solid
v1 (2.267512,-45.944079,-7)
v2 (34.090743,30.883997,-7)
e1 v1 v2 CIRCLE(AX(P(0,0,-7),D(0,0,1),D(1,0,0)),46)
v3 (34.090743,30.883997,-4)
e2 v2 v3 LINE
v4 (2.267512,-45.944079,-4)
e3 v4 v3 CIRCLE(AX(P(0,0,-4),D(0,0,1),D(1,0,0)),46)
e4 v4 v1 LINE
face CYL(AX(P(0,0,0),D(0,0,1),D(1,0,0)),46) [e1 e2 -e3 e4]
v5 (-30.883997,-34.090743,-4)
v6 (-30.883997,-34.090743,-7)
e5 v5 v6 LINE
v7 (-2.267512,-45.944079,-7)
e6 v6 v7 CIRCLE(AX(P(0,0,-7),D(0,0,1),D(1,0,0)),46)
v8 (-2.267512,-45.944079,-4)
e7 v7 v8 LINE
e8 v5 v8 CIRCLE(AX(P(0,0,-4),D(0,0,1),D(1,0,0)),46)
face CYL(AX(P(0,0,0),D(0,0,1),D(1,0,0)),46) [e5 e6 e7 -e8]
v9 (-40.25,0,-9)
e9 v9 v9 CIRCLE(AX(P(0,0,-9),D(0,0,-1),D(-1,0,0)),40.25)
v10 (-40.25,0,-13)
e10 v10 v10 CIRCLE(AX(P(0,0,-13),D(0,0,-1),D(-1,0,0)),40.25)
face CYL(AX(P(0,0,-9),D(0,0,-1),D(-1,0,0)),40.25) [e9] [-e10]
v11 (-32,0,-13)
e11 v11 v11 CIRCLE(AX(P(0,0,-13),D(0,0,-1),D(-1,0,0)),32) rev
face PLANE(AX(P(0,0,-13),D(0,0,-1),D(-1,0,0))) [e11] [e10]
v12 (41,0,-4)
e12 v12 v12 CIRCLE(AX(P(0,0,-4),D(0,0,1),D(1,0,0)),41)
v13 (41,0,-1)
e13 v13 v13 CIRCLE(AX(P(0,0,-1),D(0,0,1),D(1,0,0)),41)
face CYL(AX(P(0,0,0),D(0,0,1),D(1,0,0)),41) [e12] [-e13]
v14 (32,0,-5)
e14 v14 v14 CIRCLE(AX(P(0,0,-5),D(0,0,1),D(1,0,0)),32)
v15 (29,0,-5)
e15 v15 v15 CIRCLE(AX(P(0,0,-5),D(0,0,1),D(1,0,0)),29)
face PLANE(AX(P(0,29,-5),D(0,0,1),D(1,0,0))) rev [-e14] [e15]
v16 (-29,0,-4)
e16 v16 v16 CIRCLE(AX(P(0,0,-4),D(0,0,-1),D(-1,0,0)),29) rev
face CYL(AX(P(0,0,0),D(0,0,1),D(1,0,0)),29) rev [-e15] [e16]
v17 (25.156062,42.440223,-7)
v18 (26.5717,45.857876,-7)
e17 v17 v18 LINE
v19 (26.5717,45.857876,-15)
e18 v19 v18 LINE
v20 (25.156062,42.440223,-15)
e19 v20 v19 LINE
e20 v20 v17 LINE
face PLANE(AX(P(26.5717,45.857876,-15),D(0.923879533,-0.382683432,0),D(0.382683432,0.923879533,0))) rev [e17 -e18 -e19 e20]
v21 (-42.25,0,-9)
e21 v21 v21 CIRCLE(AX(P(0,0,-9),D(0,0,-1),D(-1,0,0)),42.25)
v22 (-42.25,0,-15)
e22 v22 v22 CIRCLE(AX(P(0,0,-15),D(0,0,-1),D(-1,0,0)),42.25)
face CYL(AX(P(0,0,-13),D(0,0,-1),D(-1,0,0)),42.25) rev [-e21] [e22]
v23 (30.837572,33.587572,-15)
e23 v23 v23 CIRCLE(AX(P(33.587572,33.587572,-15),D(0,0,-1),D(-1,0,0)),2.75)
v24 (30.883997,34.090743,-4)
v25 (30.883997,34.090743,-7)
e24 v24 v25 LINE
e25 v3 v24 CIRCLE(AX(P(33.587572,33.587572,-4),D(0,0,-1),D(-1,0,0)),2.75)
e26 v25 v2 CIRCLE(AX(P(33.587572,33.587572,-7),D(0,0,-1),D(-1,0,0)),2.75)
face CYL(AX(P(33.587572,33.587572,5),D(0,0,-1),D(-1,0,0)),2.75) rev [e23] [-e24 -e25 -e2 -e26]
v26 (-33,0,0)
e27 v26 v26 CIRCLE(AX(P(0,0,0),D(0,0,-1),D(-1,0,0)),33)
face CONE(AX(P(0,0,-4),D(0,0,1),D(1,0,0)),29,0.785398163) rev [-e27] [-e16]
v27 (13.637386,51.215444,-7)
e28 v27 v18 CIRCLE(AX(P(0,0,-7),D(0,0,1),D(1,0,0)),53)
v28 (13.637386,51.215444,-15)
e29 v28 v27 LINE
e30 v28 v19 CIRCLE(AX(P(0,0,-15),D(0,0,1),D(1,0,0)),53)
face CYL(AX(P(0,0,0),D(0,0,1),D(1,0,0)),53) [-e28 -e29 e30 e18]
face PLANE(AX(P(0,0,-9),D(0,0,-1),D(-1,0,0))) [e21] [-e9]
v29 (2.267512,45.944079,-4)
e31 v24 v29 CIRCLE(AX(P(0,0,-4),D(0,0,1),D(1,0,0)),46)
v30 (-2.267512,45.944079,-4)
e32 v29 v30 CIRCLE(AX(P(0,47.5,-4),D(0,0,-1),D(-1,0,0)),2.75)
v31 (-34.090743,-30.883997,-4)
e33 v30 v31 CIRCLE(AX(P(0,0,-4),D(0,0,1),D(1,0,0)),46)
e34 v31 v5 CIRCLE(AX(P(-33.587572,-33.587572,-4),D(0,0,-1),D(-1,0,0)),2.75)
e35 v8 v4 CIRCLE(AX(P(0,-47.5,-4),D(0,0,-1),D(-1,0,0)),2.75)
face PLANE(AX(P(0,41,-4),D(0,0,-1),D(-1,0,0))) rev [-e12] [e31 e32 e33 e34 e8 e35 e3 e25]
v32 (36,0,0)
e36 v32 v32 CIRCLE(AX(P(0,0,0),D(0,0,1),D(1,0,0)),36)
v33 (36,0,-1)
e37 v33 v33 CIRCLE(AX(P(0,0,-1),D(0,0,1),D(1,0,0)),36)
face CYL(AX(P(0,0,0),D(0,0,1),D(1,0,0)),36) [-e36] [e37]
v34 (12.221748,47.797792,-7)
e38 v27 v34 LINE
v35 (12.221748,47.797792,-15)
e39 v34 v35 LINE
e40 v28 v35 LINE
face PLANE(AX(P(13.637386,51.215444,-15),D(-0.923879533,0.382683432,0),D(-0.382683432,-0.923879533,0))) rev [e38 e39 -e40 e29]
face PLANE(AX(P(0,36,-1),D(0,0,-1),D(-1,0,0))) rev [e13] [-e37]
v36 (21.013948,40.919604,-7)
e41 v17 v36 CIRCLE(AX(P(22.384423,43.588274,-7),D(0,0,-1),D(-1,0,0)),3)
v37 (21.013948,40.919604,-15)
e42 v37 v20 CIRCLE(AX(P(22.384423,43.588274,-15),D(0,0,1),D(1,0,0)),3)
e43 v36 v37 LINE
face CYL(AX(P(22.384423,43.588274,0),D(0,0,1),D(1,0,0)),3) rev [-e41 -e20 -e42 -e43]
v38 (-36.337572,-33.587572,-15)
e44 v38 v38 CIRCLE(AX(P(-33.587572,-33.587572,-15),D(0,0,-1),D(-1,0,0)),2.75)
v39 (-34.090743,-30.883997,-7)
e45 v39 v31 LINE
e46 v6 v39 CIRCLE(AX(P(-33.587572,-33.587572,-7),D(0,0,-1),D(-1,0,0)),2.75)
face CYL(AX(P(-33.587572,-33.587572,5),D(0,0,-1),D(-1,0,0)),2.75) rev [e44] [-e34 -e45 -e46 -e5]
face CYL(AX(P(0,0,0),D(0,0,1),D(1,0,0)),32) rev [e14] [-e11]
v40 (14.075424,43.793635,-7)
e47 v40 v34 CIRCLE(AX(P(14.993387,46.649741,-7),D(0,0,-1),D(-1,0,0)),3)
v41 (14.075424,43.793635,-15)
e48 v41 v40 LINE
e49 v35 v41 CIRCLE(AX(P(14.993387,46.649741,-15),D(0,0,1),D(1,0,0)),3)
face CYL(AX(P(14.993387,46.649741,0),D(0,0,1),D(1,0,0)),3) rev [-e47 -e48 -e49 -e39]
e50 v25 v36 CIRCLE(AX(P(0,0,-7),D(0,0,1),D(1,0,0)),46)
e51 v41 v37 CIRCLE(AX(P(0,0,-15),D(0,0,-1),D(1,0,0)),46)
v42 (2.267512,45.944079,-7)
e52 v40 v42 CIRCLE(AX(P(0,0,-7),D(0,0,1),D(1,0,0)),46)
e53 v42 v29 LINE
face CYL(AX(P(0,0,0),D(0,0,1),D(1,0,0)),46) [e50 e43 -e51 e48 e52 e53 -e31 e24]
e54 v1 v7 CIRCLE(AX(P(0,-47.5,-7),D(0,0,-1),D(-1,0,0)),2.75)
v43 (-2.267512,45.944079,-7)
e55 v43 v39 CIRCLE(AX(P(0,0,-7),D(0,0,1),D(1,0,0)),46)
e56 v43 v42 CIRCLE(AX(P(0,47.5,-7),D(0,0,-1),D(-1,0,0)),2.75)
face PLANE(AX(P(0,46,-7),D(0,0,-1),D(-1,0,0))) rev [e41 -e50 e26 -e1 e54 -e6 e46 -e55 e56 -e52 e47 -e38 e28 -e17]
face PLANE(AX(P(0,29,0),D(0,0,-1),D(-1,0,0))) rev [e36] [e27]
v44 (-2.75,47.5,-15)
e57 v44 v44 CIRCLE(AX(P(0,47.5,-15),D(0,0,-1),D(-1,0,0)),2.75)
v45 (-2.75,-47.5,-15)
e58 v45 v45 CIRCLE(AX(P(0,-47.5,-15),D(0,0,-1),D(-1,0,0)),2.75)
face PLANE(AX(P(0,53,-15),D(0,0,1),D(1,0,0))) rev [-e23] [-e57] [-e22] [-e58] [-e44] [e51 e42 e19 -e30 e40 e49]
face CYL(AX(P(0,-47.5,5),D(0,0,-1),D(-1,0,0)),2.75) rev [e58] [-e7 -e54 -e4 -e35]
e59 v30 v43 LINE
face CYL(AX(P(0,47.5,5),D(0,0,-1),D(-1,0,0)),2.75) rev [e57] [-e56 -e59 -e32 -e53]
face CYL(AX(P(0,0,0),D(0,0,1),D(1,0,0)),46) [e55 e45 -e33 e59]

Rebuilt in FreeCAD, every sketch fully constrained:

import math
import FreeCAD as App
import Part
import Sketcher
from FreeCAD import Vector
Q = App.Units.Quantity


def edges_at(feature, points):
    """Names of the edges that pass closest to the given points."""
    edges = feature.Shape.Edges
    near = lambda p: min(range(len(edges)), key=lambda i: edges[i].distToShape(Part.Vertex(*p))[0])
    return sorted({f"Edge{near(p) + 1}" for p in points})


def add_polygon(sketch, points):
    """Adds a closed chain of lines whose ends are joined by coincident constraints."""
    first, n = sketch.GeometryCount, len(points)
    for a, b in zip(points, points[1:] + points[:1]):
        sketch.addGeometry(Part.LineSegment(App.Vector(*a, 0), App.Vector(*b, 0)), False)
    for i in range(n):
        sketch.addConstraint(Sketcher.Constraint("Coincident", first + i, 2, first + (i + 1) % n, 1))

doc = App.newDocument("Part")
body = doc.addObject("PartDesign::Body", "Body")

# Sketch on YZ plane
sketch1 = body.newObject("Sketcher::SketchObject", "Sketch")
sketch1.AttachmentSupport = (doc.getObject("YZ_Plane"), [""])
sketch1.MapMode = "FlatFace"
add_polygon(sketch1, [(29, -5), (32, -5), (32, -15), (53, -15), (53, -7), (46, -7), (46, -4), (41, -4), (41, -1), (36, -1), (36, 0), (29, 0)])  # lines 0-11
sketch1.addConstraint([
    Sketcher.Constraint("Horizontal", 0),
    Sketcher.Constraint("Vertical", 1),
    Sketcher.Constraint("Horizontal", 2),
    Sketcher.Constraint("Vertical", 3),
    Sketcher.Constraint("Horizontal", 4),
    Sketcher.Constraint("Vertical", 5),
    Sketcher.Constraint("Horizontal", 6),
    Sketcher.Constraint("Vertical", 7),
    Sketcher.Constraint("Horizontal", 8),
    Sketcher.Constraint("Vertical", 9),
    Sketcher.Constraint("Horizontal", 10),
    Sketcher.Constraint("Vertical", 11),
    Sketcher.Constraint("PointOnObject", 9, 2, -1),
    Sketcher.Constraint("Equal", 6, 8),
    Sketcher.Constraint("Equal", 4, 10),
    Sketcher.Constraint("Equal", 0, 5),
    Sketcher.Constraint("Equal", 5, 7),
    Sketcher.Constraint("Equal", 8, 11),
    Sketcher.Constraint("DistanceX", 0, 1, 0, 2, Q("3 mm")),
    Sketcher.Constraint("DistanceX", 2, 1, 2, 2, Q("21 mm")),
    Sketcher.Constraint("DistanceX", 4, 2, 4, 1, Q("7 mm")),
    Sketcher.Constraint("DistanceY", 1, 2, 1, 1, Q("10 mm")),
    Sketcher.Constraint("DistanceY", 3, 1, 3, 2, Q("8 mm")),
    Sketcher.Constraint("DistanceX", -1, 1, 0, 2, Q("32 mm")),
])
revolution = body.newObject("PartDesign::Revolution", "Revolution")
revolution.Profile = sketch1
revolution.ReferenceAxis = (sketch1, ["V_Axis"])
revolution.Angle = 360
doc.recompute()

chamfer = body.newObject("PartDesign::Chamfer", "Chamfer")
chamfer.Base = (revolution, edges_at(revolution, [(-29, 0, 0)]))
chamfer.Size = 4

# Sketch on XY plane
sketch2 = body.newObject("Sketcher::SketchObject", "Sketch001")
sketch2.AttachmentSupport = (doc.getObject("XY_Plane"), [""])
sketch2.MapMode = "FlatFace"
sketch2.AttachmentOffset = App.Placement(Vector(0, 0, -15), App.Rotation())
sketch2.addGeometry([
    Part.Circle(Vector(0, 47.5, 0), Vector(0, 0, 1), 2.8),
    Part.Circle(Vector(-33.6, -33.6, 0), Vector(0, 0, 1), 2.8),
    Part.Circle(Vector(0, -47.5, 0), Vector(0, 0, 1), 2.8),
    Part.Circle(Vector(33.6, 33.6, 0), Vector(0, 0, 1), 2.8),
], False)
sketch2.addConstraint([
    Sketcher.Constraint("Equal", 0, 1),
    Sketcher.Constraint("Equal", 1, 2),
    Sketcher.Constraint("Equal", 2, 3),
    Sketcher.Constraint("Symmetric", 0, 3, 2, 3, -1, 1),
    Sketcher.Constraint("Symmetric", 1, 3, 3, 3, -1, 1),
    Sketcher.Constraint("PointOnObject", 0, 3, -2),
    Sketcher.Constraint("Diameter", 0, Q("5.5 mm")),
    Sketcher.Constraint("DistanceY", 2, 3, 0, 3, Q("95 mm")),
    Sketcher.Constraint("DistanceX", 1, 3, -1, 1, Q("33.587572 mm")),
    Sketcher.Constraint("DistanceY", 1, 3, -1, 1, Q("33.587572 mm")),
])
pocket1 = body.newObject("PartDesign::Pocket", "Pocket")
pocket1.Profile = sketch2
pocket1.Length = 20
pocket1.Reversed = True

# Sketch on XY plane
sketch3 = body.newObject("Sketcher::SketchObject", "Sketch002")
sketch3.AttachmentSupport = (doc.getObject("XY_Plane"), [""])
sketch3.MapMode = "FlatFace"
sketch3.AttachmentOffset = App.Placement(Vector(0, 0, -7), App.Rotation())
sketch3.addGeometry([
    Part.LineSegment(Vector(24, 39, 0), Vector(27, 46, 0)),
    Part.ArcOfCircle(Part.Circle(Vector(0, 0, 0), Vector(0, 0, 1), 53), math.radians(59.91), math.radians(75.09)),
    Part.LineSegment(Vector(14, 51, 0), Vector(11, 45, 0)),
    Part.ArcOfCircle(Part.Circle(Vector(0, 0, 0), Vector(0, 0, 1), 46), math.radians(58.75), math.radians(76.25)),
], False)
sketch3.addConstraint([
    Sketcher.Constraint("Coincident", 0, 2, 1, 1),
    Sketcher.Constraint("Coincident", 1, 2, 2, 1),
    Sketcher.Constraint("Coincident", 2, 2, 3, 2),
    Sketcher.Constraint("Coincident", 3, 1, 0, 1),
    Sketcher.Constraint("Coincident", 1, 3, -1, 1),
    Sketcher.Constraint("Coincident", 3, 3, -1, 1),
    Sketcher.Constraint("Parallel", 0, 2),
    Sketcher.Constraint("Equal", 0, 2),
    Sketcher.Constraint("Radius", 1, Q("53 mm")),
    Sketcher.Constraint("Radius", 3, Q("46 mm")),
    Sketcher.Constraint("Angle", 0, Q("67.5 deg")),
    Sketcher.Constraint("DistanceX", -1, 1, 0, 2, Q("26.5717 mm")),
])
pocket2 = body.newObject("PartDesign::Pocket", "Pocket001")
pocket2.Profile = sketch3
pocket2.Type = "ThroughAll"
doc.recompute()

fillet = body.newObject("PartDesign::Fillet", "Fillet")
fillet.Base = (pocket2, edges_at(pocket2, [(23.866, 39.325, -11), (10.931, 44.682, -11)]))
fillet.Radius = 3

# Sketch on XY plane
sketch4 = body.newObject("Sketcher::SketchObject", "Sketch003")
sketch4.AttachmentSupport = (doc.getObject("XY_Plane"), [""])
sketch4.MapMode = "FlatFace"
sketch4.AttachmentOffset = App.Placement(Vector(0, 0, -15), App.Rotation())
sketch4.addGeometry(Part.Circle(Vector(0, 0, 0), Vector(0, 0, 1), 42), False)
sketch4.addConstraint([
    Sketcher.Constraint("Coincident", 0, 3, -1, 1),
    Sketcher.Constraint("Diameter", 0, Q("84.5 mm")),
])
pocket3 = body.newObject("PartDesign::Pocket", "Pocket002")
pocket3.Profile = sketch4
pocket3.Length = 2
pocket3.Reversed = True

# Sketch on XY plane
sketch5 = body.newObject("Sketcher::SketchObject", "Sketch004")
sketch5.AttachmentSupport = (doc.getObject("XY_Plane"), [""])
sketch5.MapMode = "FlatFace"
sketch5.AttachmentOffset = App.Placement(Vector(0, 0, -13), App.Rotation())
sketch5.addGeometry([
    Part.Circle(Vector(0, 0, 0), Vector(0, 0, 1), 42),
    Part.Circle(Vector(0, 0, 0), Vector(0, 0, 1), 40),
], False)
sketch5.addConstraint([
    Sketcher.Constraint("Coincident", 0, 3, -1, 1),
    Sketcher.Constraint("Coincident", 1, 3, -1, 1),
    Sketcher.Constraint("Diameter", 0, Q("84.5 mm")),
    Sketcher.Constraint("Diameter", 1, Q("80.5 mm")),
])
pocket4 = body.newObject("PartDesign::Pocket", "Pocket003")
pocket4.Profile = sketch5
pocket4.Length = 4
pocket4.Reversed = True

doc.recompute()
